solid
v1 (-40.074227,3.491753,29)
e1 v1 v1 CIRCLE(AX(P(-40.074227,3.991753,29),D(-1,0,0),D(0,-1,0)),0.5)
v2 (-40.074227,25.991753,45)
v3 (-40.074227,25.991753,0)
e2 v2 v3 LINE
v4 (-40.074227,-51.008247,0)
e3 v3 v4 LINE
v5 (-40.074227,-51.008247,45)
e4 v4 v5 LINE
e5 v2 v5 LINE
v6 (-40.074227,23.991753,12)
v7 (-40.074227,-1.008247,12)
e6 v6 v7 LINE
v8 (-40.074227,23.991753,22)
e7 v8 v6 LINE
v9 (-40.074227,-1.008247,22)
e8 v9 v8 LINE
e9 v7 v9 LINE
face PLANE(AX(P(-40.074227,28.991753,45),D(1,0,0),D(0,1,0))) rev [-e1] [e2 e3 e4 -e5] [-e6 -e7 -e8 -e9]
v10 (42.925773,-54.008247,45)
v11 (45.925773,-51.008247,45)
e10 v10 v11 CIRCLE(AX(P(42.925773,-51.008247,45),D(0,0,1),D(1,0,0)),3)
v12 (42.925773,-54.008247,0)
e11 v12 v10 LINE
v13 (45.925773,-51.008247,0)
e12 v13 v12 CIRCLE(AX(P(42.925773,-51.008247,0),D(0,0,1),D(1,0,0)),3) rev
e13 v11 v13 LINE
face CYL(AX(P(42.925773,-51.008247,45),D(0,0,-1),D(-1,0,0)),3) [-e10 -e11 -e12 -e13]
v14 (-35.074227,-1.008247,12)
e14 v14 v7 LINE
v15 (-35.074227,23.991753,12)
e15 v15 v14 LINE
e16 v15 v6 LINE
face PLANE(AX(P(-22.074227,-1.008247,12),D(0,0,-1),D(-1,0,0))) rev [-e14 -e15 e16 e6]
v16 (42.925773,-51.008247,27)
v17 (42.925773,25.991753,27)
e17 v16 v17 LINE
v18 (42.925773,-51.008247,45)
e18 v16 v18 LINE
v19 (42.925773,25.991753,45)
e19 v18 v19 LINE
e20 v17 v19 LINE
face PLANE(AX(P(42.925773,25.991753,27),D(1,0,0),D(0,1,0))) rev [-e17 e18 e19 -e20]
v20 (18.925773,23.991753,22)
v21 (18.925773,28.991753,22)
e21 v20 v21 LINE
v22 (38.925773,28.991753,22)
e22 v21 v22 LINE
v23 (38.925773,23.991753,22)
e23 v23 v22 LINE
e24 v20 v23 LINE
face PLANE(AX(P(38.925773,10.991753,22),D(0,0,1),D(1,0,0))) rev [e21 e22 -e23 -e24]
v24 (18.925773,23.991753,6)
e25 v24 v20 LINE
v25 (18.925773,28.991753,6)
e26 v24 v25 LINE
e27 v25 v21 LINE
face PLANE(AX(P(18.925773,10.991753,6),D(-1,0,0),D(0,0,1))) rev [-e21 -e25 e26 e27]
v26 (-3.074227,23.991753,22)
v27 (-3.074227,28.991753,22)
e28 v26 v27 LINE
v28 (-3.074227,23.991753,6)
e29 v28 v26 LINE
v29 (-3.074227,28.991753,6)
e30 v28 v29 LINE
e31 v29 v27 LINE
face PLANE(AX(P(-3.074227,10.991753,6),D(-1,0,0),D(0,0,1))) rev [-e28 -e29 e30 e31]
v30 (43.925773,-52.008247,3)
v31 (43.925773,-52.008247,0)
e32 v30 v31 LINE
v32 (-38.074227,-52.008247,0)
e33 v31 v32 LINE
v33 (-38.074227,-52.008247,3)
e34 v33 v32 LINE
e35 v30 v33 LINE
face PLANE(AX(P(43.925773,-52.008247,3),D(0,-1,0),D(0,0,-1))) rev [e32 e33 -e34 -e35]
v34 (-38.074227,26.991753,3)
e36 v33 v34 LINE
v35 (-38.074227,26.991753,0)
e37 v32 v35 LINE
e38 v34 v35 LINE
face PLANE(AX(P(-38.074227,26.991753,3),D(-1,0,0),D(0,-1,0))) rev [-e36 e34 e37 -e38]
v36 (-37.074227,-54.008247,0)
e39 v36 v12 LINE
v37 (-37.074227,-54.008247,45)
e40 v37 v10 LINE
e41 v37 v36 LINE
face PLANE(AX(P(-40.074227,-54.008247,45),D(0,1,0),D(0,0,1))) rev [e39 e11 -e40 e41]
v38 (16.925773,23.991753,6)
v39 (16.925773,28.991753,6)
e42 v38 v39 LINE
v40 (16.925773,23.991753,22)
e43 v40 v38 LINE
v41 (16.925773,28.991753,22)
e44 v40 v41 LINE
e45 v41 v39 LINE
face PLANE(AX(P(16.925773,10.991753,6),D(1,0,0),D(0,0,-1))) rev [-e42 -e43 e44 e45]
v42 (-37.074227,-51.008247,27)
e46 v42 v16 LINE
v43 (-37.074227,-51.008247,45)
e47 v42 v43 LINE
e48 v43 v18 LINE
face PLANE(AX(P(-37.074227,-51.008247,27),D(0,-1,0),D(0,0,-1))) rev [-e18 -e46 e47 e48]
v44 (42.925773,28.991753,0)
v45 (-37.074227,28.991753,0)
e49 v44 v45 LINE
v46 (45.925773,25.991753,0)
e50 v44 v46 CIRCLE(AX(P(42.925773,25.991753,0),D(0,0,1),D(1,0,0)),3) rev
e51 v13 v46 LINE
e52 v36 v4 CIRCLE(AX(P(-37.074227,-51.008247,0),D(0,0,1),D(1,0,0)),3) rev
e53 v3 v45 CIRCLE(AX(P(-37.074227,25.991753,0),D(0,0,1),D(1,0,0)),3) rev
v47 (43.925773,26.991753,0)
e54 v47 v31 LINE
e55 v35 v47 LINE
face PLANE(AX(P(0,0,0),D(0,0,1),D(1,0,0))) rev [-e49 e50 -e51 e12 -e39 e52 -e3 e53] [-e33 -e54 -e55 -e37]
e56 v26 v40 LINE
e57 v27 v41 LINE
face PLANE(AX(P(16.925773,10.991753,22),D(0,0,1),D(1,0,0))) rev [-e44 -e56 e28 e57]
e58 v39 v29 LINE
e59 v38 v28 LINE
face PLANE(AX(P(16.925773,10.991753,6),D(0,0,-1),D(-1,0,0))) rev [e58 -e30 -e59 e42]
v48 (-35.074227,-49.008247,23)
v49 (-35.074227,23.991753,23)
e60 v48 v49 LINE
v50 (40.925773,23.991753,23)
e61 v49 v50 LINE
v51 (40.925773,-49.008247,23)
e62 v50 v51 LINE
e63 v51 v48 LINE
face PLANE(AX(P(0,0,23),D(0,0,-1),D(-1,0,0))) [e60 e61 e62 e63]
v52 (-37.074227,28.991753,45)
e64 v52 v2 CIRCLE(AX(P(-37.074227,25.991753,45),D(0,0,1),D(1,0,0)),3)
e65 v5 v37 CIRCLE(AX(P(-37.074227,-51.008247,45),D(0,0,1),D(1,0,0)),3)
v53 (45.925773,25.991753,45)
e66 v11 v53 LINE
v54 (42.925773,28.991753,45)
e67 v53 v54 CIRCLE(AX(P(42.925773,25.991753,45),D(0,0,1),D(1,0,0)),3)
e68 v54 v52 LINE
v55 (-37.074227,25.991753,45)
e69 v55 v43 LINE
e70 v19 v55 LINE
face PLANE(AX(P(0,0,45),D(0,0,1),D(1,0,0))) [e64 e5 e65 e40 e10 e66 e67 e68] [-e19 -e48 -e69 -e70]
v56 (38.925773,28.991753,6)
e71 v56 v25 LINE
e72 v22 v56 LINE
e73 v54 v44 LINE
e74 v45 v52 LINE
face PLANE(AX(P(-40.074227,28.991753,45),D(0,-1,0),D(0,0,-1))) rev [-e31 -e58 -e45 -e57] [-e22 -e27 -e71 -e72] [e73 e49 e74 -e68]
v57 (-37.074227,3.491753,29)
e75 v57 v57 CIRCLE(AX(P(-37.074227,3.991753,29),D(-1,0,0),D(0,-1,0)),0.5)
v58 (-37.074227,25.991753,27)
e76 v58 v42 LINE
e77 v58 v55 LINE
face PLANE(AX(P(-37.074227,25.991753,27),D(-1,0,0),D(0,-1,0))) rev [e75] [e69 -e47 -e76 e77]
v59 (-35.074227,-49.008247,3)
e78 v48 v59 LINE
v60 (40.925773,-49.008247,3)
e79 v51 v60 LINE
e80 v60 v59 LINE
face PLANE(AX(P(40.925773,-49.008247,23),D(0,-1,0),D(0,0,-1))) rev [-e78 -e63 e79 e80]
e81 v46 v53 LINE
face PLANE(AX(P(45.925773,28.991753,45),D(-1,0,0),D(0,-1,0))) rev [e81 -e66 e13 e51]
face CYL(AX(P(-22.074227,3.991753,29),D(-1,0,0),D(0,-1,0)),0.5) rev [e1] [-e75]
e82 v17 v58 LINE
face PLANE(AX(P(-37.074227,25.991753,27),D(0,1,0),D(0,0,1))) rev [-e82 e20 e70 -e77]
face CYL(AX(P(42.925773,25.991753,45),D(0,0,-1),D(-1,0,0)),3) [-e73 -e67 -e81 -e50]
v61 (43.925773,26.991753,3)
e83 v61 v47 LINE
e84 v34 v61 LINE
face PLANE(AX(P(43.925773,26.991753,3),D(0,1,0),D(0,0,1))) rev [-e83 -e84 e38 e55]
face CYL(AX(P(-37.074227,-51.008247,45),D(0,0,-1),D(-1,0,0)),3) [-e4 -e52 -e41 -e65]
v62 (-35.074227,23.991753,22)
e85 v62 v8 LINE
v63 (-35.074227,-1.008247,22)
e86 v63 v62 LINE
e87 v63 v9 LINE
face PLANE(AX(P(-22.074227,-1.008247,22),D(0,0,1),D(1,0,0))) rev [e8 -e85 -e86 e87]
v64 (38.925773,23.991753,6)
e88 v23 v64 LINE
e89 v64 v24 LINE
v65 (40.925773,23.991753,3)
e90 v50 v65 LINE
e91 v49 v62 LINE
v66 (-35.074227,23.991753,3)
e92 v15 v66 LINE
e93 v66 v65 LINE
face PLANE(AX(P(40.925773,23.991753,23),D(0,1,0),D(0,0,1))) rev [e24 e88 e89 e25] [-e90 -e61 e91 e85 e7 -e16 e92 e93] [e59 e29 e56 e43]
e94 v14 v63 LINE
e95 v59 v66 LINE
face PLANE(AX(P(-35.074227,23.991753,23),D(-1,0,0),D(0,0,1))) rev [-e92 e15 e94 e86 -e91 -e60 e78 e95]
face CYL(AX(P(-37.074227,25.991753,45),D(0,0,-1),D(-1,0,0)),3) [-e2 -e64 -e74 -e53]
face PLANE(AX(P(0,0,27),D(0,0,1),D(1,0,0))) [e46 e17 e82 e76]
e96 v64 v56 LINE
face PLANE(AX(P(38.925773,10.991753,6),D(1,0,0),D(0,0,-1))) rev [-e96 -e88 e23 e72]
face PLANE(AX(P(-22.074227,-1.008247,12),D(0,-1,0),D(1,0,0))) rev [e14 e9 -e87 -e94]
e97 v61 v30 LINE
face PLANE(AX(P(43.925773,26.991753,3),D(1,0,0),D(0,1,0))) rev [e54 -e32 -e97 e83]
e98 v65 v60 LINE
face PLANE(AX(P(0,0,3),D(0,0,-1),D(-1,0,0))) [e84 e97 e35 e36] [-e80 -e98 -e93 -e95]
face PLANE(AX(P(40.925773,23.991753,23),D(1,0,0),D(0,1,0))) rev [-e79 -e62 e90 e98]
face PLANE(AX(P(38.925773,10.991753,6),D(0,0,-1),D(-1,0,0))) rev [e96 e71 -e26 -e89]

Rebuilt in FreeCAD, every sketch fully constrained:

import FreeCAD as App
import Part
import Sketcher
Q = App.Units.Quantity


def edges_at(feature, points):
    """Names of the edges that pass closest to the given points."""
    edges = feature.Shape.Edges
    near = lambda p: min(range(len(edges)), key=lambda i: edges[i].distToShape(Part.Vertex(*p))[0])
    return sorted({f"Edge{near(p) + 1}" for p in points})


def add_polygon(sketch, points):
    """Adds a closed chain of lines whose ends are joined by coincident constraints."""
    first, n = sketch.GeometryCount, len(points)
    for a, b in zip(points, points[1:] + points[:1]):
        sketch.addGeometry(Part.LineSegment(App.Vector(*a, 0), App.Vector(*b, 0)), False)
    for i in range(n):
        sketch.addConstraint(Sketcher.Constraint("Coincident", first + i, 2, first + (i + 1) % n, 1))

doc = App.newDocument("Part")
params = doc.addObject("Spreadsheet::Sheet", "Params")
for row, (alias, value) in enumerate([
    ("sketch1_width", "86 mm"),
    ("sketch1_height", "83 mm"),
    ("pad1_length", "45 mm"),
    ("sketch2_width", "82 mm"),
    ("sketch2_height", "79 mm"),
    ("pocket1_length", "3 mm"),
    ("sketch3_width", "76 mm"),
    ("sketch3_height", "73 mm"),
    ("pocket2_length", "20 mm"),
    ("sketch4_width", "80 mm"),
    ("sketch4_height", "77 mm"),
    ("pocket3_length", "18 mm"),
    ("sketch5_width", "20 mm"),
    ("sketch5_height", "16 mm"),
    ("pocket4_length", "18 mm"),
    ("sketch6_width", "20 mm"),
    ("sketch6_height", "16 mm"),
    ("pocket5_length", "18 mm"),
    ("sketch7_width", "25 mm"),
    ("sketch7_height", "10 mm"),
    ("pocket6_length", "18 mm"),
    ("sketch8_diameter", "1 mm"),
    ("pocket7_length", "18 mm"),
    ("fillet_radius", "3 mm"),
], start=1):
    params.set(f"A{row}", alias)
    params.set(f"B{row}", "=" + value)
    params.setAlias(f"B{row}", alias)

body = doc.addObject("PartDesign::Body", "Body")

sketch1 = body.newObject("Sketcher::SketchObject", "Sketch")
sketch1.AttachmentSupport = (doc.getObject("XY_Plane"), [""])
sketch1.MapMode = "FlatFace"
add_polygon(sketch1, [(-40, 29), (-40, -54), (46, -54), (46, 29)])
sketch1.addConstraint([
    Sketcher.Constraint("Vertical", 0),
    Sketcher.Constraint("Horizontal", 1),
    Sketcher.Constraint("Vertical", 2),
    Sketcher.Constraint("Horizontal", 3),
    Sketcher.Constraint("DistanceX", 1, 1, 1, 2, Q("86 mm")),
    Sketcher.Constraint("DistanceY", 0, 2, 0, 1, Q("83 mm")),
    Sketcher.Constraint("DistanceX", 0, 2, -1, 1, Q("40.074227 mm")),
    Sketcher.Constraint("DistanceY", 0, 2, -1, 1, Q("54.008247 mm")),
])
sketch1.setExpression("Constraints[8]", "Params.sketch1_width")
sketch1.setExpression("Constraints[9]", "Params.sketch1_height")
pad1 = body.newObject("PartDesign::Pad", "Pad")
pad1.Profile = sketch1
pad1.setExpression("Length", "Params.pad1_length")

sketch2 = body.newObject("Sketcher::SketchObject", "Sketch001")
sketch2.AttachmentSupport = (doc.getObject("XY_Plane"), [""])
sketch2.MapMode = "FlatFace"
add_polygon(sketch2, [(44, 27), (44, -52), (-38, -52), (-38, 27)])
sketch2.addConstraint([
    Sketcher.Constraint("Vertical", 0),
    Sketcher.Constraint("Horizontal", 1),
    Sketcher.Constraint("Vertical", 2),
    Sketcher.Constraint("Horizontal", 3),
    Sketcher.Constraint("DistanceX", 1, 2, 1, 1, Q("82 mm")),
    Sketcher.Constraint("DistanceY", 0, 2, 0, 1, Q("79 mm")),
    Sketcher.Constraint("DistanceX", -1, 1, 0, 2, Q("43.925773 mm")),
    Sketcher.Constraint("DistanceY", 0, 2, -1, 1, Q("52.008247 mm")),
])
sketch2.setExpression("Constraints[8]", "Params.sketch2_width")
sketch2.setExpression("Constraints[9]", "Params.sketch2_height")
pocket1 = body.newObject("PartDesign::Pocket", "Pocket")
pocket1.Profile = sketch2
pocket1.setExpression("Length", "Params.pocket1_length")
pocket1.Reversed = True

sketch3 = body.newObject("Sketcher::SketchObject", "Sketch002")
sketch3.AttachmentSupport = (doc.getObject("XY_Plane"), [""])
sketch3.MapMode = "FlatFace"
sketch3.AttachmentOffset = App.Placement(App.Vector(0, 0, 3), App.Rotation())
add_polygon(sketch3, [(41, 24), (41, -49), (-35, -49), (-35, 24)])
sketch3.addConstraint([
    Sketcher.Constraint("Vertical", 0),
    Sketcher.Constraint("Horizontal", 1),
    Sketcher.Constraint("Vertical", 2),
    Sketcher.Constraint("Horizontal", 3),
    Sketcher.Constraint("DistanceX", 1, 2, 1, 1, Q("76 mm")),
    Sketcher.Constraint("DistanceY", 0, 2, 0, 1, Q("73 mm")),
    Sketcher.Constraint("DistanceX", -1, 1, 0, 2, Q("40.925773 mm")),
    Sketcher.Constraint("DistanceY", 0, 2, -1, 1, Q("49.008247 mm")),
])
sketch3.setExpression("Constraints[8]", "Params.sketch3_width")
sketch3.setExpression("Constraints[9]", "Params.sketch3_height")
pocket2 = body.newObject("PartDesign::Pocket", "Pocket001")
pocket2.Profile = sketch3
pocket2.setExpression("Length", "Params.pocket2_length")
pocket2.Reversed = True

sketch4 = body.newObject("Sketcher::SketchObject", "Sketch003")
sketch4.AttachmentSupport = (doc.getObject("XY_Plane"), [""])
sketch4.MapMode = "FlatFace"
sketch4.AttachmentOffset = App.Placement(App.Vector(0, 0, 45), App.Rotation())
add_polygon(sketch4, [(-37, 26), (-37, -51), (43, -51), (43, 26)])
sketch4.addConstraint([
    Sketcher.Constraint("Vertical", 0),
    Sketcher.Constraint("Horizontal", 1),
    Sketcher.Constraint("Vertical", 2),
    Sketcher.Constraint("Horizontal", 3),
    Sketcher.Constraint("DistanceX", 1, 1, 1, 2, Q("80 mm")),
    Sketcher.Constraint("DistanceY", 0, 2, 0, 1, Q("77 mm")),
    Sketcher.Constraint("DistanceX", 0, 2, -1, 1, Q("37.074227 mm")),
    Sketcher.Constraint("DistanceY", 0, 2, -1, 1, Q("51.008247 mm")),
])
sketch4.setExpression("Constraints[8]", "Params.sketch4_width")
sketch4.setExpression("Constraints[9]", "Params.sketch4_height")
pocket3 = body.newObject("PartDesign::Pocket", "Pocket002")
pocket3.Profile = sketch4
pocket3.setExpression("Length", "Params.pocket3_length")

sketch5 = body.newObject("Sketcher::SketchObject", "Sketch004")
sketch5.AttachmentSupport = (doc.getObject("XZ_Plane"), [""])
sketch5.MapMode = "FlatFace"
sketch5.AttachmentOffset = App.Placement(App.Vector(0, 0, -28.991753), App.Rotation())
add_polygon(sketch5, [(19, 6), (19, 22), (39, 22), (39, 6)])
sketch5.addConstraint([
    Sketcher.Constraint("Vertical", 0),
    Sketcher.Constraint("Horizontal", 1),
    Sketcher.Constraint("Vertical", 2),
    Sketcher.Constraint("Horizontal", 3),
    Sketcher.Constraint("DistanceX", 1, 1, 1, 2, Q("20 mm")),
    Sketcher.Constraint("DistanceY", 0, 1, 0, 2, Q("16 mm")),
    Sketcher.Constraint("DistanceY", -1, 1, 0, 2, Q("22 mm")),
    Sketcher.Constraint("DistanceX", -1, 1, 0, 2, Q("18.925773 mm")),
])
sketch5.setExpression("Constraints[8]", "Params.sketch5_width")
sketch5.setExpression("Constraints[9]", "Params.sketch5_height")
pocket4 = body.newObject("PartDesign::Pocket", "Pocket003")
pocket4.Profile = sketch5
pocket4.setExpression("Length", "Params.pocket4_length")
pocket4.Reversed = True

sketch6 = body.newObject("Sketcher::SketchObject", "Sketch005")
sketch6.AttachmentSupport = (doc.getObject("XZ_Plane"), [""])
sketch6.MapMode = "FlatFace"
sketch6.AttachmentOffset = App.Placement(App.Vector(0, 0, -28.991753), App.Rotation())
add_polygon(sketch6, [(-3, 6), (-3, 22), (17, 22), (17, 6)])
sketch6.addConstraint([
    Sketcher.Constraint("Vertical", 0),
    Sketcher.Constraint("Horizontal", 1),
    Sketcher.Constraint("Vertical", 2),
    Sketcher.Constraint("Horizontal", 3),
    Sketcher.Constraint("DistanceX", 1, 1, 1, 2, Q("20 mm")),
    Sketcher.Constraint("DistanceY", 0, 1, 0, 2, Q("16 mm")),
    Sketcher.Constraint("DistanceY", -1, 1, 0, 2, Q("22 mm")),
    Sketcher.Constraint("DistanceX", 0, 2, -1, 1, Q("3.074227 mm")),
])
sketch6.setExpression("Constraints[8]", "Params.sketch6_width")
sketch6.setExpression("Constraints[9]", "Params.sketch6_height")
pocket5 = body.newObject("PartDesign::Pocket", "Pocket004")
pocket5.Profile = sketch6
pocket5.setExpression("Length", "Params.pocket5_length")
pocket5.Reversed = True

sketch7 = body.newObject("Sketcher::SketchObject", "Sketch006")
sketch7.AttachmentSupport = (doc.getObject("YZ_Plane"), [""])
sketch7.MapMode = "FlatFace"
sketch7.AttachmentOffset = App.Placement(App.Vector(0, 0, -40.074227), App.Rotation())
add_polygon(sketch7, [(24, 12), (-1, 12), (-1, 22), (24, 22)])
sketch7.addConstraint([
    Sketcher.Constraint("Horizontal", 0),
    Sketcher.Constraint("Vertical", 1),
    Sketcher.Constraint("Horizontal", 2),
    Sketcher.Constraint("Vertical", 3),
    Sketcher.Constraint("DistanceX", 0, 2, 0, 1, Q("25 mm")),
    Sketcher.Constraint("DistanceY", 1, 1, 1, 2, Q("10 mm")),
    Sketcher.Constraint("DistanceY", -1, 1, 0, 2, Q("12 mm")),
    Sketcher.Constraint("DistanceX", 0, 2, -1, 1, Q("1.008247 mm")),
])
sketch7.setExpression("Constraints[8]", "Params.sketch7_width")
sketch7.setExpression("Constraints[9]", "Params.sketch7_height")
pocket6 = body.newObject("PartDesign::Pocket", "Pocket005")
pocket6.Profile = sketch7
pocket6.setExpression("Length", "Params.pocket6_length")
pocket6.Reversed = True

sketch8 = body.newObject("Sketcher::SketchObject", "Sketch007")
sketch8.AttachmentSupport = (doc.getObject("YZ_Plane"), [""])
sketch8.MapMode = "FlatFace"
sketch8.AttachmentOffset = App.Placement(App.Vector(0, 0, -40.074227), App.Rotation())
sketch8.addGeometry(Part.Circle(App.Vector(4, 29, 0), App.Vector(0, 0, 1), 0.5), False)
sketch8.addConstraint([
    Sketcher.Constraint("Diameter", 0, Q("1 mm")),
    Sketcher.Constraint("DistanceY", -1, 1, 0, 3, Q("29 mm")),
    Sketcher.Constraint("DistanceX", -1, 1, 0, 3, Q("3.991753 mm")),
])
sketch8.setExpression("Constraints[0]", "Params.sketch8_diameter")
pocket7 = body.newObject("PartDesign::Pocket", "Pocket006")
pocket7.Profile = sketch8
pocket7.setExpression("Length", "Params.pocket7_length")
pocket7.Reversed = True
doc.recompute()

fillet = body.newObject("PartDesign::Fillet", "Fillet")
fillet.Base = (pocket7, edges_at(pocket7, [
    (-40.074, 28.992, 22.5),
    (45.926, 28.992, 22.5),
    (45.926, -54.008, 22.5),
    (-40.074, -54.008, 22.5),
]))
fillet.setExpression("Radius", "Params.fillet_radius")

doc.recompute()
